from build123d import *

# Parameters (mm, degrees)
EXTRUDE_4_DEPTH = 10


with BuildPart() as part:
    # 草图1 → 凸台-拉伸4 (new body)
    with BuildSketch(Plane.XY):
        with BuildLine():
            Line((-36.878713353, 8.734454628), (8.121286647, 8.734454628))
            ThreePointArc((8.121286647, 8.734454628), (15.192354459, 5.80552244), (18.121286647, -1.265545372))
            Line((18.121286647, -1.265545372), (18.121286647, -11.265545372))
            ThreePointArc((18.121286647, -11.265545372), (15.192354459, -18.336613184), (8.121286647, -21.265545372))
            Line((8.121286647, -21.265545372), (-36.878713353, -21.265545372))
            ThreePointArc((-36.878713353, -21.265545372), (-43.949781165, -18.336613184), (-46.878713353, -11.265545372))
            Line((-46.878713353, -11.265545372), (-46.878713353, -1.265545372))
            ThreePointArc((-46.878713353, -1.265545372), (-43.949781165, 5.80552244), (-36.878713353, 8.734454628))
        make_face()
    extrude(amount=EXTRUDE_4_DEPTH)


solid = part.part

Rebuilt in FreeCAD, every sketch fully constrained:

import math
import FreeCAD as App
import Part
import Sketcher
from FreeCAD import Vector

doc = App.newDocument("Part")
body = doc.addObject("PartDesign::Body", "Body")

sketch1 = body.newObject("Sketcher::SketchObject", "Sketch")
sketch1.AttachmentSupport = (doc.getObject("XY_Plane"), [""])
sketch1.MapMode = "FlatFace"
sketch1.addGeometry([
    Part.LineSegment(Vector(8, 9, 0), Vector(-37, 9, 0)),
    Part.ArcOfCircle(Part.Circle(Vector(-37, -1, 0), Vector(0, 0, 1), 10), math.radians(90), math.radians(180)),
    Part.LineSegment(Vector(-47, -1, 0), Vector(-47, -11, 0)),
    Part.ArcOfCircle(Part.Circle(Vector(-37, -11, 0), Vector(0, 0, 1), 10), math.radians(180), math.radians(270)),
    Part.LineSegment(Vector(-37, -21, 0), Vector(8, -21, 0)),
    Part.ArcOfCircle(Part.Circle(Vector(8, -11, 0), Vector(0, 0, 1), 10), math.radians(-90), math.radians(0)),
    Part.LineSegment(Vector(18, -11, 0), Vector(18, -1, 0)),
    Part.ArcOfCircle(Part.Circle(Vector(8, -1, 0), Vector(0, 0, 1), 10), math.radians(0), math.radians(90)),
], False)
sketch1.addConstraint([
    Sketcher.Constraint("Tangent", 0, 2, 1, 1),
    Sketcher.Constraint("Tangent", 1, 2, 2, 1),
    Sketcher.Constraint("Tangent", 2, 2, 3, 1),
    Sketcher.Constraint("Tangent", 3, 2, 4, 1),
    Sketcher.Constraint("Tangent", 4, 2, 5, 1),
    Sketcher.Constraint("Tangent", 5, 2, 6, 1),
    Sketcher.Constraint("Tangent", 6, 2, 7, 1),
    Sketcher.Constraint("Tangent", 7, 2, 0, 1),
    Sketcher.Constraint("Horizontal", 0),
    Sketcher.Constraint("Vertical", 2),
    Sketcher.Constraint("Horizontal", 4),
    Sketcher.Constraint("Vertical", 6),
    Sketcher.Constraint("Equal", 1, 3),
    Sketcher.Constraint("Equal", 3, 5),
    Sketcher.Constraint("Equal", 5, 7),
    Sketcher.Constraint("Radius", 1, 10.0),
    Sketcher.Constraint("DistanceX", 0, 2, 0, 1, 45.0),
    Sketcher.Constraint("DistanceY", 2, 2, 2, 1, 10.0),
    Sketcher.Constraint("DistanceX", 1, 3, -1, 1, 36.878713),
    Sketcher.Constraint("DistanceY", 1, 3, -1, 1, 1.265545),
])
pad1 = body.newObject("PartDesign::Pad", "Pad")
pad1.Profile = sketch1
pad1.Length = 10

doc.recompute()
